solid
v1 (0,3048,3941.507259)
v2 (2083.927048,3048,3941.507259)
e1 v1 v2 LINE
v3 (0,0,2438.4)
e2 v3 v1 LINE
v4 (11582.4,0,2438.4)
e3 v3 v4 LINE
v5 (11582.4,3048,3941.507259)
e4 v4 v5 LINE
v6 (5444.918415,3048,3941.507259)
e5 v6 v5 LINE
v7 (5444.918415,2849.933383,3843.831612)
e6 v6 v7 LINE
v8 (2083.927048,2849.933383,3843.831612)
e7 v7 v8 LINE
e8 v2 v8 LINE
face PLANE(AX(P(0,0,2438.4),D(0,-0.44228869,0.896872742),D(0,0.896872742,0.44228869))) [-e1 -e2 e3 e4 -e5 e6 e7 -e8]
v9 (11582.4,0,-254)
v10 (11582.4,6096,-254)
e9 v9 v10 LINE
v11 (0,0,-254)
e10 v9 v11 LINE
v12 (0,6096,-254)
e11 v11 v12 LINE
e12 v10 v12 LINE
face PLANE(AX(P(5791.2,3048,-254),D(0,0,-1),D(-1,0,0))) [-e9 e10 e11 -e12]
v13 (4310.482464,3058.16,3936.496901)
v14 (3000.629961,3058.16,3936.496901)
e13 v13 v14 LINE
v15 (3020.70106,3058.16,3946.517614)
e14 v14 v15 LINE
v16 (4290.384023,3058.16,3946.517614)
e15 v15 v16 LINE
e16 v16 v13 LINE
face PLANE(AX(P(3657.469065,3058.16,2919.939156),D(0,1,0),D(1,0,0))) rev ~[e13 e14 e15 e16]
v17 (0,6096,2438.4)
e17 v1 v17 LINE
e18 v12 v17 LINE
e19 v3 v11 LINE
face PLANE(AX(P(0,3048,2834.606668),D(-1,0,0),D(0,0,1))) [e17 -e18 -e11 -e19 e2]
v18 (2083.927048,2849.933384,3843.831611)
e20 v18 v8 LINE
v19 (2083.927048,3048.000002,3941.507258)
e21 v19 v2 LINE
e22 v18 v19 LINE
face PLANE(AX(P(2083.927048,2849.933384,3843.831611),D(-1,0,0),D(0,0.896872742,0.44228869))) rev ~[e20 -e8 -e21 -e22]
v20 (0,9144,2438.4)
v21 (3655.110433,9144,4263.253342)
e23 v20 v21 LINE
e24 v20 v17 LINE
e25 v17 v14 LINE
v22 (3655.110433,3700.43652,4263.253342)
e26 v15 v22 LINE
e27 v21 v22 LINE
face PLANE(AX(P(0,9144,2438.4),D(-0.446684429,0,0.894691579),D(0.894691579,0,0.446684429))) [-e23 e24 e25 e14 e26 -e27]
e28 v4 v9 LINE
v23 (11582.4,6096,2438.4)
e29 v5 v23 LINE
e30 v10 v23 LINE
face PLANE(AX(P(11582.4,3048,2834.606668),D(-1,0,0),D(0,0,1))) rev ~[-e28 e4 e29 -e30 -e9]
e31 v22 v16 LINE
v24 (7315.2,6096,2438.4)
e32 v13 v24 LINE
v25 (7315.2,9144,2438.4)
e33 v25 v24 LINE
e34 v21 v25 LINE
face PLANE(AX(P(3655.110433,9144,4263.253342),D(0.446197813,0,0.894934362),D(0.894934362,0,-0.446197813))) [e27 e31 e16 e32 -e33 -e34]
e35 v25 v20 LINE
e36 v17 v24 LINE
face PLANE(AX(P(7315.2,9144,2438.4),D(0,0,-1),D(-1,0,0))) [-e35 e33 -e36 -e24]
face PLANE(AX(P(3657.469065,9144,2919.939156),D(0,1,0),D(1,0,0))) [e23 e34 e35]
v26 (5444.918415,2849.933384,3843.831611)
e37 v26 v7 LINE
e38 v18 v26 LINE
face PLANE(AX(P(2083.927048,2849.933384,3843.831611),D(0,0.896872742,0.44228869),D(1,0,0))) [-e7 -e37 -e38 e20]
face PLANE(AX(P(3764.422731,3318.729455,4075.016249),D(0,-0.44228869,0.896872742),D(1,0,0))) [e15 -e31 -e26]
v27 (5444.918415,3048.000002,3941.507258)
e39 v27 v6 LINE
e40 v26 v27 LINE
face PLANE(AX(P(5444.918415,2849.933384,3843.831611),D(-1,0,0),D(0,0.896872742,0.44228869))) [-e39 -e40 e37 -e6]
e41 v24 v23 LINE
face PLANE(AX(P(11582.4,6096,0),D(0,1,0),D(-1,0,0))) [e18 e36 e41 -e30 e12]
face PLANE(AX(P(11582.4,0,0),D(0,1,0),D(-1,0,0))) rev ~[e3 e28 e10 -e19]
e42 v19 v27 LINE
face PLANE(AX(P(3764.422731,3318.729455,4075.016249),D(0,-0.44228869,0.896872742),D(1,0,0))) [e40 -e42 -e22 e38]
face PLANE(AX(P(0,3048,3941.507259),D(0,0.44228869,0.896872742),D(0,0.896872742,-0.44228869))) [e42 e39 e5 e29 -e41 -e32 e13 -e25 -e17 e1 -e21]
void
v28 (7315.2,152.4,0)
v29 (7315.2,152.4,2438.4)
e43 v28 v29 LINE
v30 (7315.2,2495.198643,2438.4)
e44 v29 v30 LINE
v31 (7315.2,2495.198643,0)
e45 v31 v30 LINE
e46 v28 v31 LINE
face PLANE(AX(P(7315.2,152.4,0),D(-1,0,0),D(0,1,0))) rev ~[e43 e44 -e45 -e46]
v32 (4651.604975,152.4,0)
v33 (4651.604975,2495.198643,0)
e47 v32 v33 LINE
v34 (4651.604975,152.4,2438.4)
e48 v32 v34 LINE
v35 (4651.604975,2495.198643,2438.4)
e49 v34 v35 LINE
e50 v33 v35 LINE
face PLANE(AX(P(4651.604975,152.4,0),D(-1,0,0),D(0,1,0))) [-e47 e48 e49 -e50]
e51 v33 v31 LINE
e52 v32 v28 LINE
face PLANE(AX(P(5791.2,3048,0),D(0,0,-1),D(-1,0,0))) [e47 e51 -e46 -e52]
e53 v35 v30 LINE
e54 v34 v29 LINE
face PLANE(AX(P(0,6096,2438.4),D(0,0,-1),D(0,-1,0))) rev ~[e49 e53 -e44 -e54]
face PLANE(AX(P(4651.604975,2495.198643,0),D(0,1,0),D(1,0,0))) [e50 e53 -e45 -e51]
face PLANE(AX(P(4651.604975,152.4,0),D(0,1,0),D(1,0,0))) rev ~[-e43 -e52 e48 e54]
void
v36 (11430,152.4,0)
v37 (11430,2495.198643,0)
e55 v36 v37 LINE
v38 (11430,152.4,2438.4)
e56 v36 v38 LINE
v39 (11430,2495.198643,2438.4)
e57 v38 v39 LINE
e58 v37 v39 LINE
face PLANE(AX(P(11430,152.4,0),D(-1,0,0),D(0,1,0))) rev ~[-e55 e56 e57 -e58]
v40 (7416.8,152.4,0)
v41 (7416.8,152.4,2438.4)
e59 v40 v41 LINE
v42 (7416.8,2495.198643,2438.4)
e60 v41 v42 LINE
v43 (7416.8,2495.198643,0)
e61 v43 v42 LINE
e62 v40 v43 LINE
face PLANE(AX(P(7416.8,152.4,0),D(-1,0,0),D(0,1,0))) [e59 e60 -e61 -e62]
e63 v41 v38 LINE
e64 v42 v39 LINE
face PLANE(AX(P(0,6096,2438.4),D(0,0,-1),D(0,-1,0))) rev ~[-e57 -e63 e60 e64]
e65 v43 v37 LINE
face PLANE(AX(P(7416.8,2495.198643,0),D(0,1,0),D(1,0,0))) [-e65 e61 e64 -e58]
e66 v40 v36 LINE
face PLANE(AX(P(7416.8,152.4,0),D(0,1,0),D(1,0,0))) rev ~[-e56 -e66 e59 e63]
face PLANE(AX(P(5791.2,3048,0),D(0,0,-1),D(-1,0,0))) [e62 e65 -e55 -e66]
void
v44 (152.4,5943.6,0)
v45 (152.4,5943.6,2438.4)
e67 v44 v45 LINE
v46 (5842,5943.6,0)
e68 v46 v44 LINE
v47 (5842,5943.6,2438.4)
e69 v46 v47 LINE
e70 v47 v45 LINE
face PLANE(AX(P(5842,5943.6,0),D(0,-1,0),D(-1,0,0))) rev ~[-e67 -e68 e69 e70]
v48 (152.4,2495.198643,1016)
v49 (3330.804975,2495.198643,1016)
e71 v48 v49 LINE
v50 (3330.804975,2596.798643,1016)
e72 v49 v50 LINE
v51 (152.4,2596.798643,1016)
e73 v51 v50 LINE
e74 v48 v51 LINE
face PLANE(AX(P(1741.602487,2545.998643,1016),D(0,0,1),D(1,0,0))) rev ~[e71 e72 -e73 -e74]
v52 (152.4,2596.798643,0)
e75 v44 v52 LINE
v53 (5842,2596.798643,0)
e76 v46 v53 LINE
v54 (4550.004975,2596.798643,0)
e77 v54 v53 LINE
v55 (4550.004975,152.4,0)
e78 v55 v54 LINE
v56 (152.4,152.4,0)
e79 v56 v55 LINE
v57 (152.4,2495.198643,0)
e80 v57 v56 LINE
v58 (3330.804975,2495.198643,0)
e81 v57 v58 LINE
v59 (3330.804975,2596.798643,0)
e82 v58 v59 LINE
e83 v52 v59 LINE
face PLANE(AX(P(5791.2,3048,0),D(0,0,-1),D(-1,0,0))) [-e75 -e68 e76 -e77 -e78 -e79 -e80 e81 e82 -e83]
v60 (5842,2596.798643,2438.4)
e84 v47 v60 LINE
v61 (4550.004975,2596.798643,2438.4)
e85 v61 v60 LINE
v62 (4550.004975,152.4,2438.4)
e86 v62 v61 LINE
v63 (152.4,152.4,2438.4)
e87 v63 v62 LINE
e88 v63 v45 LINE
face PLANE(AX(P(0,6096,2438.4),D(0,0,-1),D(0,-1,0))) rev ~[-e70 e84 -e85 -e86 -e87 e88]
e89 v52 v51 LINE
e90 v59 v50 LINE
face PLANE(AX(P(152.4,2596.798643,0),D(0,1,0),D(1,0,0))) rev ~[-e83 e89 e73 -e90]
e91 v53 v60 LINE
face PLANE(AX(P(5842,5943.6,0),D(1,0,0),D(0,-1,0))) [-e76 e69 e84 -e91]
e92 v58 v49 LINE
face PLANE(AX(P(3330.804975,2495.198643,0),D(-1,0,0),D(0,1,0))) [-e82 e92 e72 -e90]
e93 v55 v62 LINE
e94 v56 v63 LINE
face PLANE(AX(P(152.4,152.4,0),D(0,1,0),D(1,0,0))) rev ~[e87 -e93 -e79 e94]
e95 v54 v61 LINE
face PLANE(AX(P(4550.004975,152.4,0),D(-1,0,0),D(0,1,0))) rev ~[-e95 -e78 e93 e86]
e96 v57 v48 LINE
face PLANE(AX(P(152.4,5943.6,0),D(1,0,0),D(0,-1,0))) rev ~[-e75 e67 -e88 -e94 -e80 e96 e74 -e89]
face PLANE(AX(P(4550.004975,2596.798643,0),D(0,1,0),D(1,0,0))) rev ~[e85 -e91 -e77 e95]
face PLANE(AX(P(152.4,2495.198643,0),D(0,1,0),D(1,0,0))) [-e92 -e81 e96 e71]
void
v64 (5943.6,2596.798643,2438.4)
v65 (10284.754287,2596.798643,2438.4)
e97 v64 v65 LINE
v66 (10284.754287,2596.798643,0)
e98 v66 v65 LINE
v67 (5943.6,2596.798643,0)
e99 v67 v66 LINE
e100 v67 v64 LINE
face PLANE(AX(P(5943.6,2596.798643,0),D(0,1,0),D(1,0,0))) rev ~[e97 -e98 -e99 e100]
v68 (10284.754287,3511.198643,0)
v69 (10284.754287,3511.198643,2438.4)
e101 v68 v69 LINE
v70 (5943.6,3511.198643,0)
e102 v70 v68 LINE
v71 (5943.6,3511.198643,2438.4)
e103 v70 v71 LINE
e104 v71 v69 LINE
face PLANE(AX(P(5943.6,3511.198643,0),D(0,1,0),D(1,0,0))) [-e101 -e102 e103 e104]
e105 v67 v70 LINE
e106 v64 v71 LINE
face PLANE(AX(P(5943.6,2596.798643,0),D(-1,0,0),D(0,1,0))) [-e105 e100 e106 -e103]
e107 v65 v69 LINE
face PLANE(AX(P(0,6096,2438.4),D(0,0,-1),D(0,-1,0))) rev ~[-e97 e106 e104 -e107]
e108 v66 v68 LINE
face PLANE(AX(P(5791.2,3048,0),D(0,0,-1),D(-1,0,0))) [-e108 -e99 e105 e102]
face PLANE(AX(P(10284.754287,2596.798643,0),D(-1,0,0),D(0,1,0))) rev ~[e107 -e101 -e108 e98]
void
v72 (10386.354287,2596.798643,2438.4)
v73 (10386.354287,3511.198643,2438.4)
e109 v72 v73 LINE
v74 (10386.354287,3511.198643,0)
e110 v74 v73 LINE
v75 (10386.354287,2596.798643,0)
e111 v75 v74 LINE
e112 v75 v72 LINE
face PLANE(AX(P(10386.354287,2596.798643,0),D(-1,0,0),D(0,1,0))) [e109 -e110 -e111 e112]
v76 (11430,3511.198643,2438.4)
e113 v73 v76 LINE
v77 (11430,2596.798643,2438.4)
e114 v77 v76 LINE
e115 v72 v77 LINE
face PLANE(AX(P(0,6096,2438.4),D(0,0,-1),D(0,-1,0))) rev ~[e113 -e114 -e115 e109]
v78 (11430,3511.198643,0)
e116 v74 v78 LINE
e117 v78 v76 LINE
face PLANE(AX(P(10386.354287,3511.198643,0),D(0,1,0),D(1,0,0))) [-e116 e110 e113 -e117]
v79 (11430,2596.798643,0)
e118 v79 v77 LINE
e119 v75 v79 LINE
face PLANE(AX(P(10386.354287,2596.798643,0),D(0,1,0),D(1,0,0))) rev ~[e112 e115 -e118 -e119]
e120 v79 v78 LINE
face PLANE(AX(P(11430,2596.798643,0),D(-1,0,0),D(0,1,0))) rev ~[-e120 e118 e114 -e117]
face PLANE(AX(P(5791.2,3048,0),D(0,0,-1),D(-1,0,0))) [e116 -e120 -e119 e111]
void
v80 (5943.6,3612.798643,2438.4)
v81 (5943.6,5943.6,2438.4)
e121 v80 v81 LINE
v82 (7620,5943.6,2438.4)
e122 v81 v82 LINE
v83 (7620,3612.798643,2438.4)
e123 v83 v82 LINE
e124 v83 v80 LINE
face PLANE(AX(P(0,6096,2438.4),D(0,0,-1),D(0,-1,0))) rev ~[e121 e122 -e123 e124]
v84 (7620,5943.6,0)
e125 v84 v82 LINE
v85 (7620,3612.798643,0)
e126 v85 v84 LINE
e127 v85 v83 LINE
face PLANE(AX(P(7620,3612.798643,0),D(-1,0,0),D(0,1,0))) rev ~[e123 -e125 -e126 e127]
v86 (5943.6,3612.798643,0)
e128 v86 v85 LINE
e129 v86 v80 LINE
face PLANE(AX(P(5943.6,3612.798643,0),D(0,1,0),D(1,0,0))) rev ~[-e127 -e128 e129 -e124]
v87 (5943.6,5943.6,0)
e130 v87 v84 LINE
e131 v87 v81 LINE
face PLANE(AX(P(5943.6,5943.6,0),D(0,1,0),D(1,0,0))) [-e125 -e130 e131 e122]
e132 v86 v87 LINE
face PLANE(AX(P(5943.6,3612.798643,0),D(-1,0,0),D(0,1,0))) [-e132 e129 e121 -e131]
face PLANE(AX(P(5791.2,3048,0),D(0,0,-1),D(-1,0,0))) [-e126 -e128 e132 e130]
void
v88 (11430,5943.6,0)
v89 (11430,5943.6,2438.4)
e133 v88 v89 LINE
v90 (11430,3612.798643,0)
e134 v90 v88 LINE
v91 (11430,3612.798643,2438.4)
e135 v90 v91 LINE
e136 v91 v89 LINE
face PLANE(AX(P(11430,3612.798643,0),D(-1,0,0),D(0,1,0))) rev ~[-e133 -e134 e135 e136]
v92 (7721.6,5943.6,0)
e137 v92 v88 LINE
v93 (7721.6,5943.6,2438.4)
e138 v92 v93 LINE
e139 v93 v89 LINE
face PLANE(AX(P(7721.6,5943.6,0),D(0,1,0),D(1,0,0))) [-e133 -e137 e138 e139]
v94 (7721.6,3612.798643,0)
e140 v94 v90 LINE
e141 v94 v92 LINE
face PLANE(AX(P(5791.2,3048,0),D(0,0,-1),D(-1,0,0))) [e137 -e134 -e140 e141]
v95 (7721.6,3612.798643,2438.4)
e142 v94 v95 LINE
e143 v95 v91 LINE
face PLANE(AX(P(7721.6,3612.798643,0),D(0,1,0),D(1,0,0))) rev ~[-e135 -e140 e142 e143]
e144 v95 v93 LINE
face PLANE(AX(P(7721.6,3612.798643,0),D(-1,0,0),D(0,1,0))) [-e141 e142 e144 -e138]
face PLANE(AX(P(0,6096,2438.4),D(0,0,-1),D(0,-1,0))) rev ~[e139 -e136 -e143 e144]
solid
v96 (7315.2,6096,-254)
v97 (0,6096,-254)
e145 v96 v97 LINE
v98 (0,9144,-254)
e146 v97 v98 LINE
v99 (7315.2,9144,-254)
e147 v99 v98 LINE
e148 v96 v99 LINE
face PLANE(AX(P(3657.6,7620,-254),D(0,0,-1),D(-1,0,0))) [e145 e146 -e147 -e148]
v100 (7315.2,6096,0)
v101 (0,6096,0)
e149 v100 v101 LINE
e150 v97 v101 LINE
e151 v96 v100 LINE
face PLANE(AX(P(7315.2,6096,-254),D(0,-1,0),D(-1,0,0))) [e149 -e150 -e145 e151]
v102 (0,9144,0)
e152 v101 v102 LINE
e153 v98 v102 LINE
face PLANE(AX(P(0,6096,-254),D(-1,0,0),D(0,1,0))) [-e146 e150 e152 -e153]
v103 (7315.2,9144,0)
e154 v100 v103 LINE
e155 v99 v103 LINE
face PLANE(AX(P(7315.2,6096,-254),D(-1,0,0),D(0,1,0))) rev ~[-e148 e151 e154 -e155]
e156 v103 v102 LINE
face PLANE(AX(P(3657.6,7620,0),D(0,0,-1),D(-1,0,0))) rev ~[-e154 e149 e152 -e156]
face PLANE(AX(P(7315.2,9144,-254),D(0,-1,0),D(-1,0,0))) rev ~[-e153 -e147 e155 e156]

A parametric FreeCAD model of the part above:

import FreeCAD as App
import Part
import Sketcher

V = App.Vector
Q = App.Units.Quantity


def add_polygon(sketch, points):
    """Adds a closed chain of lines whose ends are joined by coincident constraints."""
    first, n = sketch.GeometryCount, len(points)
    for a, b in zip(points, points[1:] + points[:1]):
        sketch.addGeometry(Part.LineSegment(App.Vector(*a, 0), App.Vector(*b, 0)), False)
    for i in range(n):
        sketch.addConstraint(Sketcher.Constraint("Coincident", first + i, 2, first + (i + 1) % n, 1))

doc = App.newDocument("Part")
body = doc.addObject("PartDesign::Body", "Body")

sketch1 = doc.addObject("Sketcher::SketchObject", "Sketch")
body.addObject(sketch1)
sketch1.AttachmentSupport = (doc.XY_Plane, [""])
sketch1.MapMode = "FlatFace"
add_polygon(sketch1, [(0, 6096), (0, 0), (11582.4, 0), (11582.4, 6096)])
add_polygon(sketch1, [(7315.2, 152.4), (4651.604975, 152.4), (4651.604975, 2495.198643), (7315.2, 2495.198643)])
add_polygon(sketch1, [(11430, 152.4), (7416.8, 152.4), (7416.8, 2495.198643), (11430, 2495.198643)])
add_polygon(sketch1, [(4550.004975, 152.4), (152.4, 152.4), (152.4, 5943.6), (5842, 5943.6), (5842, 2596.798643), (4550.004975, 2596.798643)])
add_polygon(sketch1, [(10284.754287, 2596.798643), (5943.6, 2596.798643), (5943.6, 3511.198643), (10284.754287, 3511.198643)])
add_polygon(sketch1, [(11430, 2596.798643), (10386.354287, 2596.798643), (10386.354287, 3511.198643), (11430, 3511.198643)])
add_polygon(sketch1, [(7620, 3612.798643), (5943.6, 3612.798643), (5943.6, 5943.6), (7620, 5943.6)])
add_polygon(sketch1, [(11430, 3612.798643), (7721.6, 3612.798643), (7721.6, 5943.6), (11430, 5943.6)])
sketch1.addConstraint(Sketcher.Constraint("Vertical", 0))
sketch1.addConstraint(Sketcher.Constraint("Horizontal", 1))
sketch1.addConstraint(Sketcher.Constraint("Vertical", 2))
sketch1.addConstraint(Sketcher.Constraint("Horizontal", 3))
sketch1.addConstraint(Sketcher.Constraint("Horizontal", 4))
sketch1.addConstraint(Sketcher.Constraint("Vertical", 5))
sketch1.addConstraint(Sketcher.Constraint("Horizontal", 6))
sketch1.addConstraint(Sketcher.Constraint("Vertical", 7))
sketch1.addConstraint(Sketcher.Constraint("Horizontal", 8))
sketch1.addConstraint(Sketcher.Constraint("Vertical", 9))
sketch1.addConstraint(Sketcher.Constraint("Horizontal", 10))
sketch1.addConstraint(Sketcher.Constraint("Vertical", 11))
sketch1.addConstraint(Sketcher.Constraint("Horizontal", 12))
sketch1.addConstraint(Sketcher.Constraint("Vertical", 13))
sketch1.addConstraint(Sketcher.Constraint("Horizontal", 14))
sketch1.addConstraint(Sketcher.Constraint("Vertical", 15))
sketch1.addConstraint(Sketcher.Constraint("Horizontal", 16))
sketch1.addConstraint(Sketcher.Constraint("Vertical", 17))
sketch1.addConstraint(Sketcher.Constraint("Horizontal", 18))
sketch1.addConstraint(Sketcher.Constraint("Vertical", 19))
sketch1.addConstraint(Sketcher.Constraint("Horizontal", 20))
sketch1.addConstraint(Sketcher.Constraint("Vertical", 21))
sketch1.addConstraint(Sketcher.Constraint("Horizontal", 22))
sketch1.addConstraint(Sketcher.Constraint("Vertical", 23))
sketch1.addConstraint(Sketcher.Constraint("Horizontal", 24))
sketch1.addConstraint(Sketcher.Constraint("Vertical", 25))
sketch1.addConstraint(Sketcher.Constraint("Horizontal", 26))
sketch1.addConstraint(Sketcher.Constraint("Vertical", 27))
sketch1.addConstraint(Sketcher.Constraint("Horizontal", 28))
sketch1.addConstraint(Sketcher.Constraint("Vertical", 29))
sketch1.addConstraint(Sketcher.Constraint("Horizontal", 30))
sketch1.addConstraint(Sketcher.Constraint("Vertical", 31))
sketch1.addConstraint(Sketcher.Constraint("Horizontal", 32))
sketch1.addConstraint(Sketcher.Constraint("Vertical", 33))
sketch1.addConstraint(Sketcher.Constraint("Coincident", 0, 2, -1, 1))
sketch1.addConstraint(Sketcher.Constraint("Horizontal", 7, 2, 8, 2))
sketch1.addConstraint(Sketcher.Constraint("Horizontal", 6, 2, 9, 2))
sketch1.addConstraint(Sketcher.Constraint("Horizontal", 11, 2, 12, 2))
sketch1.addConstraint(Sketcher.Constraint("Horizontal", 16, 2, 18, 2))
sketch1.addConstraint(Sketcher.Constraint("Horizontal", 21, 2, 22, 2))
sketch1.addConstraint(Sketcher.Constraint("Horizontal", 20, 2, 23, 2))
sketch1.addConstraint(Sketcher.Constraint("Horizontal", 14, 2, 27, 2))
sketch1.addConstraint(Sketcher.Constraint("Horizontal", 29, 2, 30, 2))
sketch1.addConstraint(Sketcher.Constraint("Horizontal", 28, 2, 31, 2))
sketch1.addConstraint(Sketcher.Constraint("Vertical", 11, 2, 24, 2))
sketch1.addConstraint(Sketcher.Constraint("Vertical", 19, 2, 26, 2))
sketch1.addConstraint(Sketcher.Constraint("Vertical", 25, 2, 32, 2))
sketch1.addConstraint(Sketcher.Constraint("DistanceX", 1, 1, 1, 2, Q("456 in")))
sketch1.addConstraint(Sketcher.Constraint("DistanceX", 8, 2, 8, 1, Q("158 in")))
sketch1.addConstraint(Sketcher.Constraint("DistanceX", 14, 1, 14, 2, Q("224 in")))
sketch1.addConstraint(Sketcher.Constraint("DistanceX", 26, 2, 26, 1, Q("66 in")))
sketch1.addConstraint(Sketcher.Constraint("DistanceX", 30, 2, 30, 1, Q("146 in")))
sketch1.addConstraint(Sketcher.Constraint("DistanceY", 0, 2, 0, 1, Q("240 in")))
sketch1.addConstraint(Sketcher.Constraint("DistanceY", 13, 1, 13, 2, Q("228 in")))
sketch1.addConstraint(Sketcher.Constraint("DistanceY", 19, 1, 19, 2, Q("36 in")))
sketch1.addConstraint(Sketcher.Constraint("DistanceY", -1, 1, 4, 2, Q("6 in")))
sketch1.addConstraint(Sketcher.Constraint("DistanceX", -1, 1, 6, 2, Q("288 in")))
sketch1.addConstraint(Sketcher.Constraint("DistanceX", -1, 1, 8, 2, Q("292 in")))
sketch1.addConstraint(Sketcher.Constraint("DistanceX", -1, 1, 12, 2, Q("6 in")))
sketch1.addConstraint(Sketcher.Constraint("DistanceX", -1, 1, 18, 2, Q("234 in")))
sketch1.addConstraint(Sketcher.Constraint("DistanceY", 5, 2, 15, 2, Q("4 in")))
sketch1.addConstraint(Sketcher.Constraint("DistanceX", 16, 2, 5, 2, Q("4 in")))
sketch1.addConstraint(Sketcher.Constraint("DistanceX", 21, 2, 22, 2, Q("4 in")))
sketch1.addConstraint(Sketcher.Constraint("DistanceY", 19, 2, 26, 2, Q("4 in")))
sketch1.addConstraint(Sketcher.Constraint("DistanceX", 4, 2, 4, 1, Q("2663.595025 mm")))
sketch1.addConstraint(Sketcher.Constraint("DistanceX", 18, 2, 18, 1, Q("4341.154287 mm")))
sketch1.addConstraint(Sketcher.Constraint("DistanceY", 5, 1, 5, 2, Q("2342.798643 mm")))
pad1 = doc.addObject("PartDesign::Pad", "Pad")
body.addObject(pad1)
pad1.Profile = sketch1
pad1.Length = Q("96 in")

sketch2 = doc.addObject("Sketcher::SketchObject", "Sketch001")
body.addObject(sketch2)
sketch2.AttachmentSupport = (doc.XY_Plane, [""])
sketch2.MapMode = "FlatFace"
add_polygon(sketch2, [(11582.4, 6096), (11582.4, 0), (0, 0), (0, 6096)])
sketch2.addConstraint(Sketcher.Constraint("Vertical", 0))
sketch2.addConstraint(Sketcher.Constraint("Horizontal", 1))
sketch2.addConstraint(Sketcher.Constraint("Vertical", 2))
sketch2.addConstraint(Sketcher.Constraint("Horizontal", 3))
sketch2.addConstraint(Sketcher.Constraint("Coincident", 1, 2, -1, 1))
sketch2.addConstraint(Sketcher.Constraint("DistanceX", 1, 2, 1, 1, Q("456 in")))
sketch2.addConstraint(Sketcher.Constraint("DistanceY", 0, 2, 0, 1, Q("240 in")))
pad2 = doc.addObject("PartDesign::Pad", "Pad001")
body.addObject(pad2)
pad2.Profile = sketch2
pad2.Length = Q("10 in")
pad2.Reversed = True

sketch3 = doc.addObject("Sketcher::SketchObject", "Sketch002")
body.addObject(sketch3)
sketch3.AttachmentSupport = (doc.XY_Plane, [""])
sketch3.MapMode = "FlatFace"
add_polygon(sketch3, [(152.4, 2596.798643), (152.4, 2495.198643), (3330.804975, 2495.198643), (3330.804975, 2596.798643)])
sketch3.addConstraint(Sketcher.Constraint("Vertical", 0))
sketch3.addConstraint(Sketcher.Constraint("Horizontal", 1))
sketch3.addConstraint(Sketcher.Constraint("Vertical", 2))
sketch3.addConstraint(Sketcher.Constraint("Horizontal", 3))
sketch3.addConstraint(Sketcher.Constraint("DistanceY", 0, 2, 0, 1, Q("4 in")))
sketch3.addConstraint(Sketcher.Constraint("DistanceX", -1, 1, 0, 2, Q("6 in")))
sketch3.addConstraint(Sketcher.Constraint("DistanceX", 1, 1, 1, 2, Q("3178.404975 mm")))
sketch3.addConstraint(Sketcher.Constraint("DistanceY", -1, 1, 0, 2, Q("2495.198643 mm")))
pad3 = doc.addObject("PartDesign::Pad", "Pad002")
body.addObject(pad3)
pad3.Profile = sketch3
pad3.Length = Q("40 in")

sketch4 = doc.addObject("Sketcher::SketchObject", "Sketch003")
body.addObject(sketch4)
sketch4.AttachmentSupport = (doc.YZ_Plane, [""])
sketch4.MapMode = "FlatFace"
add_polygon(sketch4, [(6096, 2438.4), (0, 2438.4), (3048, 3941.507259)])
sketch4.addConstraint(Sketcher.Constraint("Horizontal", 0))
sketch4.addConstraint(Sketcher.Constraint("PointOnObject", 0, 2, -2))
sketch4.addConstraint(Sketcher.Constraint("Equal", 1, 2))
sketch4.addConstraint(Sketcher.Constraint("DistanceX", 0, 2, 0, 1, Q("240 in")))
sketch4.addConstraint(Sketcher.Constraint("DistanceY", -1, 1, 0, 2, Q("96 in")))
sketch4.addConstraint(Sketcher.Constraint("Angle", 1, Q("26.25 deg")))
pad4 = doc.addObject("PartDesign::Pad", "Pad003")
body.addObject(pad4)
pad4.Profile = sketch4
pad4.Length = Q("456 in")

sketch5 = doc.addObject("Sketcher::SketchObject", "Sketch004")
body.addObject(sketch5)
sketch5.AttachmentSupport = (doc.XZ_Plane, [""])
sketch5.MapMode = "FlatFace"
sketch5.AttachmentOffset = App.Placement(V(0, 0, -360 * 25.4), App.Rotation())
add_polygon(sketch5, [(7315.2, 2438.4), (0, 2438.4), (3655.110433, 4263.253342)])
sketch5.addConstraint(Sketcher.Constraint("Horizontal", 0))
sketch5.addConstraint(Sketcher.Constraint("PointOnObject", 0, 2, -2))
sketch5.addConstraint(Sketcher.Constraint("DistanceX", 0, 2, 0, 1, Q("288 in")))
sketch5.addConstraint(Sketcher.Constraint("DistanceY", -1, 1, 0, 2, Q("96 in")))
sketch5.addConstraint(Sketcher.Constraint("Angle", 2, Q("-26.5 deg")))
sketch5.addConstraint(Sketcher.Constraint("Distance", 2, Q("4089.785491 mm")))
pad5 = doc.addObject("PartDesign::Pad", "Pad004")
body.addObject(pad5)
pad5.Profile = sketch5
pad5.Length = Q("239.6 in")

sketch6 = doc.addObject("Sketcher::SketchObject", "Sketch005")
body.addObject(sketch6)
sketch6.Placement = App.Placement(V(0, -967.256392, 1961.401934), App.Rotation(V(1, 0, 0), V(0, 0.896872742, 0.44228869), V(0, -0.44228869, 0.896872742), "ZXY"))
add_polygon(sketch6, [(2083.927048, 5301.512355), (2083.927048, 4256.110819), (5444.918415, 4256.110819), (5444.918415, 5301.512355)])
sketch6.addConstraint(Sketcher.Constraint("Vertical", 0))
sketch6.addConstraint(Sketcher.Constraint("Horizontal", 1))
sketch6.addConstraint(Sketcher.Constraint("Vertical", 2))
sketch6.addConstraint(Sketcher.Constraint("Horizontal", 3))
sketch6.addConstraint(Sketcher.Constraint("DistanceX", 1, 1, 1, 2, Q("3360.991368 mm")))
sketch6.addConstraint(Sketcher.Constraint("DistanceY", 0, 2, 0, 1, Q("1045.401536 mm")))
sketch6.addConstraint(Sketcher.Constraint("DistanceY", -1, 1, 0, 2, Q("4256.110819 mm")))
sketch6.addConstraint(Sketcher.Constraint("DistanceX", -1, 1, 0, 2, Q("2083.927048 mm")))
pocket1 = doc.addObject("PartDesign::Pocket", "Pocket")
body.addObject(pocket1)
pocket1.Profile = sketch6
pocket1.Length = Q("239.6 in")
pocket1.Reversed = True
body2 = doc.addObject("PartDesign::Body", "Body001")

sketch7 = doc.addObject("Sketcher::SketchObject", "Sketch006")
body2.addObject(sketch7)
sketch7.AttachmentSupport = (doc.getObject("XY_Plane001"), [""])
sketch7.MapMode = "FlatFace"
sketch7.AttachmentOffset = App.Placement(V(0, 0, -10 * 25.4), App.Rotation())
add_polygon(sketch7, [(7315.2, 9144), (7315.2, 6096), (0, 6096), (0, 9144)])
sketch7.addConstraint(Sketcher.Constraint("Vertical", 0))
sketch7.addConstraint(Sketcher.Constraint("Horizontal", 1))
sketch7.addConstraint(Sketcher.Constraint("Vertical", 2))
sketch7.addConstraint(Sketcher.Constraint("Horizontal", 3))
sketch7.addConstraint(Sketcher.Constraint("PointOnObject", 1, 2, -2))
sketch7.addConstraint(Sketcher.Constraint("DistanceX", 1, 2, 1, 1, Q("288 in")))
sketch7.addConstraint(Sketcher.Constraint("DistanceY", 0, 2, 0, 1, Q("120 in")))
sketch7.addConstraint(Sketcher.Constraint("DistanceY", -1, 1, 0, 2, Q("240 in")))
pad6 = doc.addObject("PartDesign::Pad", "Pad005")
body2.addObject(pad6)
pad6.Profile = sketch7
pad6.Length = Q("10 in")

doc.recompute()
